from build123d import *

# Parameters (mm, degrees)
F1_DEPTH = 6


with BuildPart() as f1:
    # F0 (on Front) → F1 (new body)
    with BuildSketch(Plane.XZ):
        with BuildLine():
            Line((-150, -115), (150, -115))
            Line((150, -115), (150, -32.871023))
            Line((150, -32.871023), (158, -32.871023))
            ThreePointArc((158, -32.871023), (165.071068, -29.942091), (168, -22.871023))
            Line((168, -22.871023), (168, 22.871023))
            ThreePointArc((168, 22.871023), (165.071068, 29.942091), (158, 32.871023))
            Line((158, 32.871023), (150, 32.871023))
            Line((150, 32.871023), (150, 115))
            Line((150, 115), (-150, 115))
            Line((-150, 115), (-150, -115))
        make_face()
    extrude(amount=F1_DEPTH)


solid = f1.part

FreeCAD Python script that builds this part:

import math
import FreeCAD as App
import Part
import Sketcher
from FreeCAD import Vector

doc = App.newDocument("Part")
body = doc.addObject("PartDesign::Body", "Body")

# Sketch on XZ plane
sketch1 = body.newObject("Sketcher::SketchObject", "Sketch")
sketch1.AttachmentSupport = (doc.getObject("XZ_Plane"), [""])
sketch1.MapMode = "FlatFace"
sketch1.addGeometry(Part.LineSegment(Vector(-150, -115, 0), Vector(150, -115, 0)), False)
sketch1.addGeometry(Part.LineSegment(Vector(150, -115, 0), Vector(150, -33, 0)), False)
sketch1.addGeometry(Part.LineSegment(Vector(150, -33, 0), Vector(158, -33, 0)), False)
sketch1.addGeometry(Part.ArcOfCircle(Part.Circle(Vector(158, -23, 0), Vector(0, 0, 1), 10), math.radians(-90), math.radians(0)), False)
sketch1.addGeometry(Part.LineSegment(Vector(168, -23, 0), Vector(168, 23, 0)), False)
sketch1.addGeometry(Part.ArcOfCircle(Part.Circle(Vector(158, 23, 0), Vector(0, 0, 1), 10), math.radians(0), math.radians(90)), False)
sketch1.addGeometry(Part.LineSegment(Vector(158, 33, 0), Vector(150, 33, 0)), False)
sketch1.addGeometry(Part.LineSegment(Vector(150, 33, 0), Vector(150, 115, 0)), False)
sketch1.addGeometry(Part.LineSegment(Vector(150, 115, 0), Vector(-150, 115, 0)), False)
sketch1.addGeometry(Part.LineSegment(Vector(-150, 115, 0), Vector(-150, -115, 0)), False)
sketch1.addConstraint(Sketcher.Constraint("Coincident", 0, 2, 1, 1))
sketch1.addConstraint(Sketcher.Constraint("Coincident", 1, 2, 2, 1))
sketch1.addConstraint(Sketcher.Constraint("Tangent", 2, 2, 3, 1))
sketch1.addConstraint(Sketcher.Constraint("Tangent", 3, 2, 4, 1))
sketch1.addConstraint(Sketcher.Constraint("Tangent", 4, 2, 5, 1))
sketch1.addConstraint(Sketcher.Constraint("Tangent", 5, 2, 6, 1))
sketch1.addConstraint(Sketcher.Constraint("Coincident", 6, 2, 7, 1))
sketch1.addConstraint(Sketcher.Constraint("Coincident", 7, 2, 8, 1))
sketch1.addConstraint(Sketcher.Constraint("Coincident", 8, 2, 9, 1))
sketch1.addConstraint(Sketcher.Constraint("Coincident", 9, 2, 0, 1))
sketch1.addConstraint(Sketcher.Constraint("Horizontal", 0))
sketch1.addConstraint(Sketcher.Constraint("Vertical", 1))
sketch1.addConstraint(Sketcher.Constraint("Horizontal", 2))
sketch1.addConstraint(Sketcher.Constraint("Vertical", 4))
sketch1.addConstraint(Sketcher.Constraint("Horizontal", 6))
sketch1.addConstraint(Sketcher.Constraint("Vertical", 7))
sketch1.addConstraint(Sketcher.Constraint("Horizontal", 8))
sketch1.addConstraint(Sketcher.Constraint("Vertical", 9))
sketch1.addConstraint(Sketcher.Constraint("Equal", 3, 5))
sketch1.addConstraint(Sketcher.Constraint("Symmetric", 0, 2, 8, 2, -1, 1))
sketch1.addConstraint(Sketcher.Constraint("Symmetric", 1, 2, 6, 2, -1))
sketch1.addConstraint(Sketcher.Constraint("Radius", 3, 9.999999))
sketch1.addConstraint(Sketcher.Constraint("DistanceX", 0, 1, 0, 2, 300.0))
sketch1.addConstraint(Sketcher.Constraint("DistanceX", 2, 1, 2, 2, 8.0))
sketch1.addConstraint(Sketcher.Constraint("DistanceY", 9, 2, 9, 1, 230.0))
sketch1.addConstraint(Sketcher.Constraint("DistanceY", 1, 1, 1, 2, 82.128977))
pad1 = body.newObject("PartDesign::Pad", "Pad")
pad1.Profile = sketch1
pad1.Length = 6

doc.recompute()
